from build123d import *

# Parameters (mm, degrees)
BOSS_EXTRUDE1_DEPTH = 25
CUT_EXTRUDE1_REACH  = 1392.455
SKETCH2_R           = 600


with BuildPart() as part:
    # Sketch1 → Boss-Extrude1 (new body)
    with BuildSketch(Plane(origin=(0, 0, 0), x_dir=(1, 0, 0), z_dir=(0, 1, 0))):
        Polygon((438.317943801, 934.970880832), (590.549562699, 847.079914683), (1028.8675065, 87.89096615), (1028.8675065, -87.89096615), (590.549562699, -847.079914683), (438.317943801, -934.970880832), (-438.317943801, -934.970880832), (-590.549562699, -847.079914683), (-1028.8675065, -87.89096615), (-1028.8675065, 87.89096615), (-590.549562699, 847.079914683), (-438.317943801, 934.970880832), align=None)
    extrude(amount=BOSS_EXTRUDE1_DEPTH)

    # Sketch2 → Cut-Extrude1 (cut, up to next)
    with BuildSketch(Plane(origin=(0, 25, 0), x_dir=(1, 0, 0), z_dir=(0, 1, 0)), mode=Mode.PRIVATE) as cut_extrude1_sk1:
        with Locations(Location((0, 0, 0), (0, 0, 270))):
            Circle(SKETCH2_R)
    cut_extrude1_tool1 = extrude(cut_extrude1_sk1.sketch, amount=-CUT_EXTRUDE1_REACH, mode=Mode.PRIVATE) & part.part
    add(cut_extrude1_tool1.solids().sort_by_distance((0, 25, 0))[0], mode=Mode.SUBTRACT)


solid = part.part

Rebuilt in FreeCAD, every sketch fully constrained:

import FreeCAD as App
import Part
import Sketcher
from FreeCAD import Vector
Q = App.Units.Quantity

doc = App.newDocument("Part")
body = doc.addObject("PartDesign::Body", "Body")

# Sketch on XZ plane
sketch1 = body.newObject("Sketcher::SketchObject", "Sketch")
sketch1.AttachmentSupport = (doc.getObject("XZ_Plane"), [""])
sketch1.MapMode = "FlatFace"
sketch1.addGeometry([
    Part.LineSegment(Vector(591, -847, 0), Vector(438, -935, 0)),  # 0
    Part.LineSegment(Vector(438, -935, 0), Vector(-438, -935, 0)),  # 1
    Part.LineSegment(Vector(-438, -935, 0), Vector(-591, -847, 0)),  # 2
    Part.LineSegment(Vector(-591, -847, 0), Vector(-1029, -88, 0)),  # 3
    Part.LineSegment(Vector(-1029, -88, 0), Vector(-1029, 88, 0)),  # 4
    Part.LineSegment(Vector(-1029, 88, 0), Vector(-591, 847, 0)),  # 5
    Part.LineSegment(Vector(-591, 847, 0), Vector(-438, 935, 0)),  # 6
    Part.LineSegment(Vector(-438, 935, 0), Vector(438, 935, 0)),  # 7
    Part.LineSegment(Vector(438, 935, 0), Vector(591, 847, 0)),  # 8
    Part.LineSegment(Vector(591, 847, 0), Vector(1029, 88, 0)),  # 9
    Part.LineSegment(Vector(1029, 88, 0), Vector(1029, -88, 0)),  # 10
    Part.LineSegment(Vector(1029, -88, 0), Vector(591, -847, 0)),  # 11
], False)
sketch1.addConstraint([
    Sketcher.Constraint("Coincident", 0, 2, 1, 1),
    Sketcher.Constraint("Coincident", 1, 2, 2, 1),
    Sketcher.Constraint("Coincident", 2, 2, 3, 1),
    Sketcher.Constraint("Coincident", 3, 2, 4, 1),
    Sketcher.Constraint("Coincident", 4, 2, 5, 1),
    Sketcher.Constraint("Coincident", 5, 2, 6, 1),
    Sketcher.Constraint("Coincident", 6, 2, 7, 1),
    Sketcher.Constraint("Coincident", 7, 2, 8, 1),
    Sketcher.Constraint("Coincident", 8, 2, 9, 1),
    Sketcher.Constraint("Coincident", 9, 2, 10, 1),
    Sketcher.Constraint("Coincident", 10, 2, 11, 1),
    Sketcher.Constraint("Coincident", 11, 2, 0, 1),
    Sketcher.Constraint("Horizontal", 1),
    Sketcher.Constraint("Vertical", 4),
    Sketcher.Constraint("Horizontal", 7),
    Sketcher.Constraint("Vertical", 10),
    Sketcher.Constraint("Symmetric", 0, 2, 6, 2, -1, 1),
    Sketcher.Constraint("Symmetric", 2, 2, 8, 2, -1, 1),
    Sketcher.Constraint("Symmetric", 3, 2, 9, 2, -1, 1),
    Sketcher.Constraint("Symmetric", 5, 2, 11, 2, -1, 1),
    Sketcher.Constraint("Symmetric", 5, 2, 8, 2, -2),
    Sketcher.Constraint("Perpendicular", 0, 3),
    Sketcher.Constraint("Perpendicular", 2, 5),
    Sketcher.Constraint("Perpendicular", 5, 8),
    Sketcher.Constraint("Perpendicular", 8, 11),
    Sketcher.Constraint("Horizontal", 4, 2, 9, 2),
    Sketcher.Constraint("Angle", 0, Q("-150 deg")),
    Sketcher.Constraint("DistanceX", 1, 2, 1, 1, 876.635888),
    Sketcher.Constraint("DistanceY", 4, 1, 4, 2, 175.781932),
    Sketcher.Constraint("DistanceY", 0, 2, -1, 1, 934.970881),
    Sketcher.Constraint("DistanceX", 2, 2, 1, 2, 152.231619),
])
pad1 = body.newObject("PartDesign::Pad", "Pad")
pad1.Profile = sketch1
pad1.Length = 25
pad1.Reversed = True

# Sketch on XZ plane
sketch2 = body.newObject("Sketcher::SketchObject", "Sketch001")
sketch2.AttachmentSupport = (doc.getObject("XZ_Plane"), [""])
sketch2.MapMode = "FlatFace"
sketch2.AttachmentOffset = App.Placement(Vector(0, 0, -25), App.Rotation())
sketch2.addGeometry(Part.Circle(Vector(0, 0, 0), Vector(0, 0, 1), 600), False)
sketch2.addConstraint([
    Sketcher.Constraint("Coincident", 0, 3, -1, 1),
    Sketcher.Constraint("Diameter", 0, 1200.0),
])
pocket1 = body.newObject("PartDesign::Pocket", "Pocket")
pocket1.Profile = sketch2
pocket1.Type = "UpToFirst"
pocket1.Reversed = True

doc.recompute()
